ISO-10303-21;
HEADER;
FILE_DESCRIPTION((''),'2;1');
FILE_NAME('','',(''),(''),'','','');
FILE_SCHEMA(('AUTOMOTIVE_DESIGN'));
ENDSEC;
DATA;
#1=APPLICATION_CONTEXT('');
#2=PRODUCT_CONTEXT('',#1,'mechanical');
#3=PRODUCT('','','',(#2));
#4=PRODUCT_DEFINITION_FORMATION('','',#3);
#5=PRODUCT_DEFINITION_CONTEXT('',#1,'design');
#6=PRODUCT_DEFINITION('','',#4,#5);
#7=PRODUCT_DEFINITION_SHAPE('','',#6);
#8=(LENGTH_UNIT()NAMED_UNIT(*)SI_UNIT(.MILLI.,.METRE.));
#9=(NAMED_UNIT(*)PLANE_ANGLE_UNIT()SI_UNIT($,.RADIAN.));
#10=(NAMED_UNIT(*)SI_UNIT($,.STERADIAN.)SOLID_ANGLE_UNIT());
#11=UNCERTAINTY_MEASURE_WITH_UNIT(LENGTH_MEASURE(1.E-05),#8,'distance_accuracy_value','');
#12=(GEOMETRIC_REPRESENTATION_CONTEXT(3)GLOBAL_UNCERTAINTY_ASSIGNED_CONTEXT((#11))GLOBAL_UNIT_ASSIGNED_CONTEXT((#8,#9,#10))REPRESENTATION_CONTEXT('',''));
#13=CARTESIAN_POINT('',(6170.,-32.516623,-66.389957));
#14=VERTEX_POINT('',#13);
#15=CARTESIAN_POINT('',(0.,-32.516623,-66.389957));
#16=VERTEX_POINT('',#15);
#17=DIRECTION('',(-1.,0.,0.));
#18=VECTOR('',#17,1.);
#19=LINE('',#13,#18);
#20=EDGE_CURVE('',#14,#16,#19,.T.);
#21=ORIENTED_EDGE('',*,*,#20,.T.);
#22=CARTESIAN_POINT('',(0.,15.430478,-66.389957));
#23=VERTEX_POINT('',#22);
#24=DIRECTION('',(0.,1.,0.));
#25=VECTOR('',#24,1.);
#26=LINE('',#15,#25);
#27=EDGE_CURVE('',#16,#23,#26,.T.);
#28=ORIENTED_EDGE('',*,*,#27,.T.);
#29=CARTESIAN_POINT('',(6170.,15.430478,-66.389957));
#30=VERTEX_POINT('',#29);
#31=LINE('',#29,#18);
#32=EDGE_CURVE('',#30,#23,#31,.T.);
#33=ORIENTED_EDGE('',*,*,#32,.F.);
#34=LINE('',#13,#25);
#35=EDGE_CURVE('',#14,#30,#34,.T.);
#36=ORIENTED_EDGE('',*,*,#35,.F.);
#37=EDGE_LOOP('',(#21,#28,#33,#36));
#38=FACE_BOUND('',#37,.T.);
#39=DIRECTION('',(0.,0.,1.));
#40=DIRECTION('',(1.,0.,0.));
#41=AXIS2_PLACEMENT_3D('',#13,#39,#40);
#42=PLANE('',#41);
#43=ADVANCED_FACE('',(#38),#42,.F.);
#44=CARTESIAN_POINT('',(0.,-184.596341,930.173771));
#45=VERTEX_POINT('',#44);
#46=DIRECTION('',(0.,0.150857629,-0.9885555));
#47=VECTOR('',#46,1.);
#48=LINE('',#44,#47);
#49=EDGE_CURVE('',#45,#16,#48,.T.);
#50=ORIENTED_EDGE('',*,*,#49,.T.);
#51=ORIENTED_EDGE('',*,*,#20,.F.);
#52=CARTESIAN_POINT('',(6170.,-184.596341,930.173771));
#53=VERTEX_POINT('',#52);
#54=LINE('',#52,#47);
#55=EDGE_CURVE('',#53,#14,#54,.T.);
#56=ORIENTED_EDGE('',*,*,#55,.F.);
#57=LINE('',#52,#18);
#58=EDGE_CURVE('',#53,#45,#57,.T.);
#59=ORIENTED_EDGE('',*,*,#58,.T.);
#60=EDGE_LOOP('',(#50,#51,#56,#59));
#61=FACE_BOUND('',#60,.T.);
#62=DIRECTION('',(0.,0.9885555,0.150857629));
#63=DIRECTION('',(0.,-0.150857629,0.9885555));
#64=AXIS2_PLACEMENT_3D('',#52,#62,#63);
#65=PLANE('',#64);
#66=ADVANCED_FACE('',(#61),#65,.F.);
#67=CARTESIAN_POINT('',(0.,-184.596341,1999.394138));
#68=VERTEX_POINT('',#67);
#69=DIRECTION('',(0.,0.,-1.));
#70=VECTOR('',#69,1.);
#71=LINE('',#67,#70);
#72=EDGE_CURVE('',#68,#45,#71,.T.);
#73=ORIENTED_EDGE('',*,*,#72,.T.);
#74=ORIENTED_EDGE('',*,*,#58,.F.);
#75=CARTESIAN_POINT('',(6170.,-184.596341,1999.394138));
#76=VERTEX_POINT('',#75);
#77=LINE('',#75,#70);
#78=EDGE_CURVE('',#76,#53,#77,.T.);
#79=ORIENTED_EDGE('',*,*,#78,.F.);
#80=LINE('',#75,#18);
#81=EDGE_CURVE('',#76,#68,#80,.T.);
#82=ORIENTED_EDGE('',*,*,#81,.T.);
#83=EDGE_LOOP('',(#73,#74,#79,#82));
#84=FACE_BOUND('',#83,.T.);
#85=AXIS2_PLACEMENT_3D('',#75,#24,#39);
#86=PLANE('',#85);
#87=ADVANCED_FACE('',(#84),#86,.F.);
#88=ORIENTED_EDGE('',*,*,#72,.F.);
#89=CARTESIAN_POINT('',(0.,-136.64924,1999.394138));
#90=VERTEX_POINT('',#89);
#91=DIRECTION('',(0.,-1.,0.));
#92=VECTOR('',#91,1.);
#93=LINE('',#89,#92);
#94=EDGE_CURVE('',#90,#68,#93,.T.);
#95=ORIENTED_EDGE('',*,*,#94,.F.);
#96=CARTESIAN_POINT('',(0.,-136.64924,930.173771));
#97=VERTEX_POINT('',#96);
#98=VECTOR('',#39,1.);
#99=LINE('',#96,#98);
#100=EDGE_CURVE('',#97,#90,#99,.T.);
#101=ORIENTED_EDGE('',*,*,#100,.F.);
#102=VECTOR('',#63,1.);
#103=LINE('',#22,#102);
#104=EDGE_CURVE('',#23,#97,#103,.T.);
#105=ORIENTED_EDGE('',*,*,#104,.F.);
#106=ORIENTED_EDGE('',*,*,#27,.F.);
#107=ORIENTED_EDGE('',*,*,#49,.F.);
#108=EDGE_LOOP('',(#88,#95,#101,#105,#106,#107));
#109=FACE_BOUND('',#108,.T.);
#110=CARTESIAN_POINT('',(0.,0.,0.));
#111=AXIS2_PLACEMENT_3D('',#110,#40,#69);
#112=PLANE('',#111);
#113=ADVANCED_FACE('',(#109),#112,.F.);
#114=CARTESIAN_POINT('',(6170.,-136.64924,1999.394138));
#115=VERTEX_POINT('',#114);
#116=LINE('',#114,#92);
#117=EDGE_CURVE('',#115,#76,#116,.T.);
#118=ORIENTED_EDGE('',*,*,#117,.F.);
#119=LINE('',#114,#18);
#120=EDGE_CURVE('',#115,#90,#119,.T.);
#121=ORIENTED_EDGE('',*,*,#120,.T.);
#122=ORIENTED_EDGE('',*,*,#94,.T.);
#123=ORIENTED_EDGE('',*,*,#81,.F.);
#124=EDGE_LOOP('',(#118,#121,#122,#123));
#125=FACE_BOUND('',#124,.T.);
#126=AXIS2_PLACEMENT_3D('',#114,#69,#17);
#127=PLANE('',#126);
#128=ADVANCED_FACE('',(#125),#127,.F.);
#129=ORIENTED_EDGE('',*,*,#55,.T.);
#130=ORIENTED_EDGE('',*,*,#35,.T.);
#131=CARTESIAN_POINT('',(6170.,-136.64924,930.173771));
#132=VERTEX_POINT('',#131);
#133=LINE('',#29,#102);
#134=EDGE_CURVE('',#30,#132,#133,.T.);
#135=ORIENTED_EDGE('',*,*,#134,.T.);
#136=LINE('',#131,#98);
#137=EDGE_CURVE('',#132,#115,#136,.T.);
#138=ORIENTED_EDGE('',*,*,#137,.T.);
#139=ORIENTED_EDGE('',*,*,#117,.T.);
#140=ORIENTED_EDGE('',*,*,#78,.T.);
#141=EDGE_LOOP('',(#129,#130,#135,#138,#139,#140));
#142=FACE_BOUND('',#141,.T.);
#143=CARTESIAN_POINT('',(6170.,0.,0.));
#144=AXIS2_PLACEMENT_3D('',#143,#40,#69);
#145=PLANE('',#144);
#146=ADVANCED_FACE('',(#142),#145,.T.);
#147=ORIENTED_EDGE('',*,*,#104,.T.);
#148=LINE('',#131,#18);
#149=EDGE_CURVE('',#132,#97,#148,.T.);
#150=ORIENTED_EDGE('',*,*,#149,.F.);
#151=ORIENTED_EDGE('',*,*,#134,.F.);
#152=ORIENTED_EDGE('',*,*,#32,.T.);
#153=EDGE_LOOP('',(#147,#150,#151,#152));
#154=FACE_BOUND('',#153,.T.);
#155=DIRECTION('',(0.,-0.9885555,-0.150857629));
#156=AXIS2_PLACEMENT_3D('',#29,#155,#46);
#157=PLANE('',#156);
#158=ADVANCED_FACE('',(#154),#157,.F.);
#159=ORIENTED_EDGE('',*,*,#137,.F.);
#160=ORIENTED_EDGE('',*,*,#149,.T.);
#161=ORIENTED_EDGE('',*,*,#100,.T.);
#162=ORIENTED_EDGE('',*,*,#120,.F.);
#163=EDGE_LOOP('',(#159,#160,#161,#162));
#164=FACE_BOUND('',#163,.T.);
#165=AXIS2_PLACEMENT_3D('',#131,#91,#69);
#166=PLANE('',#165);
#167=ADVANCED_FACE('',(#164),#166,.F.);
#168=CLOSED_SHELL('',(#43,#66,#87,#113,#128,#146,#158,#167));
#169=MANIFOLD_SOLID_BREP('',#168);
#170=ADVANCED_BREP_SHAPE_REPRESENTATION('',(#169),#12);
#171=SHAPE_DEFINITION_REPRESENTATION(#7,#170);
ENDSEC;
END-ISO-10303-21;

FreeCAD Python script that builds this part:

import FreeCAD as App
import Part
import Sketcher

V = App.Vector
Q = App.Units.Quantity

doc = App.newDocument("Part")
body = doc.addObject("PartDesign::Body", "Body")

# Sketch on YZ plane
sketch1 = body.newObject("Sketcher::SketchObject", "Sketch")
sketch1.AttachmentSupport = (doc.getObject("YZ_Plane"), [""])
sketch1.MapMode = "FlatFace"
sketch1.addGeometry(Part.LineSegment(V(15, -66, 0), V(-137, 930, 0)), False)
sketch1.addGeometry(Part.LineSegment(V(-137, 930, 0), V(-137, 1999, 0)), False)
sketch1.addGeometry(Part.LineSegment(V(-137, 1999, 0), V(-185, 1999, 0)), False)
sketch1.addGeometry(Part.LineSegment(V(-185, 1999, 0), V(-185, 930, 0)), False)
sketch1.addGeometry(Part.LineSegment(V(-185, 930, 0), V(-33, -66, 0)), False)
sketch1.addGeometry(Part.LineSegment(V(-33, -66, 0), V(15, -66, 0)), False)
sketch1.addConstraint(Sketcher.Constraint("Coincident", 0, 2, 1, 1))
sketch1.addConstraint(Sketcher.Constraint("Coincident", 1, 2, 2, 1))
sketch1.addConstraint(Sketcher.Constraint("Coincident", 2, 2, 3, 1))
sketch1.addConstraint(Sketcher.Constraint("Coincident", 3, 2, 4, 1))
sketch1.addConstraint(Sketcher.Constraint("Coincident", 4, 2, 5, 1))
sketch1.addConstraint(Sketcher.Constraint("Coincident", 5, 2, 0, 1))
sketch1.addConstraint(Sketcher.Constraint("Vertical", 1))
sketch1.addConstraint(Sketcher.Constraint("Horizontal", 2))
sketch1.addConstraint(Sketcher.Constraint("Vertical", 3))
sketch1.addConstraint(Sketcher.Constraint("Horizontal", 5))
sketch1.addConstraint(Sketcher.Constraint("Parallel", 0, 4))
sketch1.addConstraint(Sketcher.Constraint("Horizontal", 0, 2, 3, 2))
sketch1.addConstraint(Sketcher.Constraint("DistanceX", 2, 2, 2, 1, Q("47.947102 mm")))
sketch1.addConstraint(Sketcher.Constraint("Distance", 0, Q("1008.10094 mm")))
sketch1.addConstraint(Sketcher.Constraint("DistanceY", 1, 1, 1, 2, Q("1069.220366 mm")))
sketch1.addConstraint(Sketcher.Constraint("DistanceX", 0, 2, -1, 1, Q("136.64924 mm")))
sketch1.addConstraint(Sketcher.Constraint("DistanceY", -1, 1, 0, 2, Q("930.173771 mm")))
sketch1.addConstraint(Sketcher.Constraint("DistanceX", -1, 1, 5, 2, Q("15.430478 mm")))
pad1 = body.newObject("PartDesign::Pad", "Pad")
pad1.Profile = sketch1
pad1.Length = 6170

doc.recompute()
